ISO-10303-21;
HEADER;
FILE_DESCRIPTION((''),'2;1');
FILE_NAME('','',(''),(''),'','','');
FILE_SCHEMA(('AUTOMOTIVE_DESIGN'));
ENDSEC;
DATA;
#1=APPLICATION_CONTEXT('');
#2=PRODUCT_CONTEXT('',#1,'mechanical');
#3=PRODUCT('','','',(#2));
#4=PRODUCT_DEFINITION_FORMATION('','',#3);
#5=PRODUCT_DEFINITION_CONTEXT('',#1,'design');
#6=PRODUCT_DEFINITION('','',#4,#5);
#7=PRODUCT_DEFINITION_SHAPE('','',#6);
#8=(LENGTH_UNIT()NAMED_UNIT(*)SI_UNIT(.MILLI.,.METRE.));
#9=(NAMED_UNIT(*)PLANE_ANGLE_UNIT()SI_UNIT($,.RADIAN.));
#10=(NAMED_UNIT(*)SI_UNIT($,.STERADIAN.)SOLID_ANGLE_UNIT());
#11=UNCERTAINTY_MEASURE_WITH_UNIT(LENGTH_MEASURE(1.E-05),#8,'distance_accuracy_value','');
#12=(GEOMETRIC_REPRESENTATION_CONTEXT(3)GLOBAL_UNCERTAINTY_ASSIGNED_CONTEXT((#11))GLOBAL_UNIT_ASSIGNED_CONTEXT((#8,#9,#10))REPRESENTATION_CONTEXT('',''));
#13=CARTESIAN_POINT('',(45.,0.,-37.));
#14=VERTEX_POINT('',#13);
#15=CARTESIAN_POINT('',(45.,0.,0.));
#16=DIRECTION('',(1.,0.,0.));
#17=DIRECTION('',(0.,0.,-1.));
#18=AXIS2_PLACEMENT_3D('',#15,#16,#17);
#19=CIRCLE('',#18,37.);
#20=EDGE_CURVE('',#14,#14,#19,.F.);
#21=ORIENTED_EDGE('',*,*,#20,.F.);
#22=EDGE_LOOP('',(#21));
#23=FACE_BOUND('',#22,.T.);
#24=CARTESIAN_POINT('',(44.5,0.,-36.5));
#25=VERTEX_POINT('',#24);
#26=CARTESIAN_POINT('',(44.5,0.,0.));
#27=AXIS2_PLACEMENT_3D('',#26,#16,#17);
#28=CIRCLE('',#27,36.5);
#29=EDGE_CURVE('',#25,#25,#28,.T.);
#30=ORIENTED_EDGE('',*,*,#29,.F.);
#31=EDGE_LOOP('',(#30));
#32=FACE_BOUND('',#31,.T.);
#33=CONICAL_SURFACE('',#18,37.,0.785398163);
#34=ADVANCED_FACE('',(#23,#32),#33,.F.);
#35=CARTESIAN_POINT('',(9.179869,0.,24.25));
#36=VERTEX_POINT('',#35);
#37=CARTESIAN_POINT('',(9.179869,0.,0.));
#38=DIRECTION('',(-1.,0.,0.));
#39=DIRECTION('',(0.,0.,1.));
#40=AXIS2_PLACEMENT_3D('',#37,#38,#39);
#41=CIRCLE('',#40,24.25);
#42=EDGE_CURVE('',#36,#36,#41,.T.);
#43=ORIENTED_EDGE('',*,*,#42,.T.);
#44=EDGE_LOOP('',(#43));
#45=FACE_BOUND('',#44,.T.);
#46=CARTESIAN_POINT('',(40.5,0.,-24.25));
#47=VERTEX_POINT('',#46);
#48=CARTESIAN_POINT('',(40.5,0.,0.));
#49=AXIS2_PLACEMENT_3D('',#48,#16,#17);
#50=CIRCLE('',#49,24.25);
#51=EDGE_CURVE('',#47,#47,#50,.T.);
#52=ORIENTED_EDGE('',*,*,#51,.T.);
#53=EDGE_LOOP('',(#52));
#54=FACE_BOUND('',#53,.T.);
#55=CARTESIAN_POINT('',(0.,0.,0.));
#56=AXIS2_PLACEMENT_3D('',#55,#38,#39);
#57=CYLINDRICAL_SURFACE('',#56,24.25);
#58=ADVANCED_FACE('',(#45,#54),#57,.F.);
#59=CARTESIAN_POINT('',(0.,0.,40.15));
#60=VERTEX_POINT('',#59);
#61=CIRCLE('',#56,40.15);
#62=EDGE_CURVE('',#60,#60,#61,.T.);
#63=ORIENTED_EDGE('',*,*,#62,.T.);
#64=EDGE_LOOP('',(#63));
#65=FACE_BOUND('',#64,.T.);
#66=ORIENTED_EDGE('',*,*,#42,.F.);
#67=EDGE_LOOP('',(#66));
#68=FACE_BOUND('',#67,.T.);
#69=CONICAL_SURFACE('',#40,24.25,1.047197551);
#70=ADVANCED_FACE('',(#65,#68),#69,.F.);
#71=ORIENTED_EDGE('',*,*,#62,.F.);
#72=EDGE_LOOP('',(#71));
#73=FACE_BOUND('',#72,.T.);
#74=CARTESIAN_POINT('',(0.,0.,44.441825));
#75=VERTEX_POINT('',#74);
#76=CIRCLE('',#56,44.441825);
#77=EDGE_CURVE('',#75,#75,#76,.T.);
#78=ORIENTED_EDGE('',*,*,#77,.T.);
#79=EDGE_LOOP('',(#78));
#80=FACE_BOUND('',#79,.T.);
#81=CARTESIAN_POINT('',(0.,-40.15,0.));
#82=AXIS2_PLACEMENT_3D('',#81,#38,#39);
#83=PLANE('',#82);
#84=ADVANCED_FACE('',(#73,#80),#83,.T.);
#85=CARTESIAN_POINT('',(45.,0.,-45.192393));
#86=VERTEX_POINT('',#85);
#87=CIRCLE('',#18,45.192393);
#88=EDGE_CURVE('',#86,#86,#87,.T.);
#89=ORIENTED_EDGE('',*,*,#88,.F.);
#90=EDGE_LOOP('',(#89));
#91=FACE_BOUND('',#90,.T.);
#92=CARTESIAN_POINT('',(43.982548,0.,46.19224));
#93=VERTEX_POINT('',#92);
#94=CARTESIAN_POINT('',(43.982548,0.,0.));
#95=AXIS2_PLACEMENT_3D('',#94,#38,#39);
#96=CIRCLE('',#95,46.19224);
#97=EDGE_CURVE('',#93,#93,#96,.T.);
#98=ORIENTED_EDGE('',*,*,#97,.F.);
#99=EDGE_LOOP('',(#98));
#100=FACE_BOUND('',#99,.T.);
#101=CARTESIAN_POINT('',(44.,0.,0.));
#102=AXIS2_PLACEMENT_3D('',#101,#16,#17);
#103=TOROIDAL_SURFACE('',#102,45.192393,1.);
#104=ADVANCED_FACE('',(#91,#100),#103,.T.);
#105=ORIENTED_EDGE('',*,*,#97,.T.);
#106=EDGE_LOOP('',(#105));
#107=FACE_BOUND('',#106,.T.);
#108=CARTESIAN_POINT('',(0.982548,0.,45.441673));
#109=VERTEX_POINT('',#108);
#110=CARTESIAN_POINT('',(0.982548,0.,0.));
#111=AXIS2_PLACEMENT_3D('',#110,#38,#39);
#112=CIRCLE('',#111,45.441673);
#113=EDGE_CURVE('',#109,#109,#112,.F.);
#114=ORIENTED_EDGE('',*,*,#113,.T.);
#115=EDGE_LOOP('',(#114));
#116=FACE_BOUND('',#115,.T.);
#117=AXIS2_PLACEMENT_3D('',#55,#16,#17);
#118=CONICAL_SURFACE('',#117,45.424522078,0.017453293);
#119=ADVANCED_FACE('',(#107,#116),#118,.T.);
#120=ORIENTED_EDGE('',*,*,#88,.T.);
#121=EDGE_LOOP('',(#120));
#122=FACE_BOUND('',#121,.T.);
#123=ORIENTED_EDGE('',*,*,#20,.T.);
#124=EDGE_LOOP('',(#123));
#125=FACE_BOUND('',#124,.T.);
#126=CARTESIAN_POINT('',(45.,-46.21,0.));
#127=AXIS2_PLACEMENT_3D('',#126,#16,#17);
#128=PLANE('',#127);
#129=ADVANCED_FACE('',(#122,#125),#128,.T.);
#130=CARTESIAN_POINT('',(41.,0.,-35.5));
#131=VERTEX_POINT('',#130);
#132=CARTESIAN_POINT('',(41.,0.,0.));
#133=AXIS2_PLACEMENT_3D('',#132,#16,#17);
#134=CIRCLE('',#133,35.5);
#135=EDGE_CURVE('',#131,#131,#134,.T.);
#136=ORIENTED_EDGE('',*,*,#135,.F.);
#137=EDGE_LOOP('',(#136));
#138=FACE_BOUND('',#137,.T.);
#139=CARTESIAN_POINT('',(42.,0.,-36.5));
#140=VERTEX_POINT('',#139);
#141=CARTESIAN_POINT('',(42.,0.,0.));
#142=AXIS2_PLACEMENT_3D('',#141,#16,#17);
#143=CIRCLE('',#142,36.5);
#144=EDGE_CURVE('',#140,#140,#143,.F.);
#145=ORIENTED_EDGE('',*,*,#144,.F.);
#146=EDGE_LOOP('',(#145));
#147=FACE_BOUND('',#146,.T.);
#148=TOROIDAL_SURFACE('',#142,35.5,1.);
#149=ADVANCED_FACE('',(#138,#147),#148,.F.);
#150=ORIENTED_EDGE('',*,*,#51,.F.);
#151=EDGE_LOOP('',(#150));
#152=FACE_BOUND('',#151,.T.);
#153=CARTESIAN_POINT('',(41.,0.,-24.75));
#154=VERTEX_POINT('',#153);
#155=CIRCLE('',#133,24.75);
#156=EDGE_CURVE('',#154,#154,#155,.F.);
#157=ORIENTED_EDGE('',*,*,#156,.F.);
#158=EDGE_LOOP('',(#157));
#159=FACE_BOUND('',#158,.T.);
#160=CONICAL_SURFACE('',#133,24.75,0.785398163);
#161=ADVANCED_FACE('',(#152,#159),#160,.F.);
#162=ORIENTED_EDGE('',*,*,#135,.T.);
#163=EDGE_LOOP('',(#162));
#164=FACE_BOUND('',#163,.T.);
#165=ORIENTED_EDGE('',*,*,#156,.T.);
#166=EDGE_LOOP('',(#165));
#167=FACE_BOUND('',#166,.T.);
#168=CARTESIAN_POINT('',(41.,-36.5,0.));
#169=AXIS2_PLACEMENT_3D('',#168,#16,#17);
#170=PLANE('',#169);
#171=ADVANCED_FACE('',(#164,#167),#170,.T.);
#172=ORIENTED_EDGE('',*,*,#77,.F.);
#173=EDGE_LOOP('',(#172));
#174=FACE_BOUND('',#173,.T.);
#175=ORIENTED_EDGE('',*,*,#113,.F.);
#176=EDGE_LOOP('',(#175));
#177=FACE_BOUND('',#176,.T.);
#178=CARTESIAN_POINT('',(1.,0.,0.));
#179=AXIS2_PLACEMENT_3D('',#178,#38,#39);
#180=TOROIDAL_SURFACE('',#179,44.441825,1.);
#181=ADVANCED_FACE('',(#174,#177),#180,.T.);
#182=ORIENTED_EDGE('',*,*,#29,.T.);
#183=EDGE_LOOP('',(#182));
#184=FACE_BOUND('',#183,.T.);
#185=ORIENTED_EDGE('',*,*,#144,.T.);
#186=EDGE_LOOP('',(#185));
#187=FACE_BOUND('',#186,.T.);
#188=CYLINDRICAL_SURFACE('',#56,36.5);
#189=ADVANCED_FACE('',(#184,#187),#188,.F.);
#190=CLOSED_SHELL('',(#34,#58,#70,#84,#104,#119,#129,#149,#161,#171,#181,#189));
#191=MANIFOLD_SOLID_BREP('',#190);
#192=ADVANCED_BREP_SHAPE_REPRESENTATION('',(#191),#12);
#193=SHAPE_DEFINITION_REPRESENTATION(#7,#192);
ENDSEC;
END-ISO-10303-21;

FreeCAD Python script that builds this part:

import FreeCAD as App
import Part
import Sketcher

V = App.Vector
Q = App.Units.Quantity


def edges_at(feature, points):
    """Names of the edges that pass closest to the given points."""
    edges = feature.Shape.Edges
    near = lambda p: min(range(len(edges)), key=lambda i: edges[i].distToShape(Part.Vertex(*p))[0])
    return sorted({f"Edge{near(p) + 1}" for p in points})


def add_polygon(sketch, points):
    """Adds a closed chain of lines whose ends are joined by coincident constraints."""
    first, n = sketch.GeometryCount, len(points)
    for a, b in zip(points, points[1:] + points[:1]):
        sketch.addGeometry(Part.LineSegment(App.Vector(*a, 0), App.Vector(*b, 0)), False)
    for i in range(n):
        sketch.addConstraint(Sketcher.Constraint("Coincident", first + i, 2, first + (i + 1) % n, 1))

doc = App.newDocument("Part")
params = doc.addObject("Spreadsheet::Sheet", "Params")
for row, (alias, value) in enumerate([
    ("sketch1_width", "4 mm"),
    ("sketch1_height", "9.71 mm"),
    ("sketch1_height2", "12.25 mm"),
    ("revolution_angle", "360 deg"),
    ("fillet_radius", "1 mm"),
    ("chamfer_size", "0.5 mm"),
    ("fillet2_radius", "1 mm"),
], start=1):
    params.set(f"A{row}", alias)
    params.set(f"B{row}", "=" + value)
    params.setAlias(f"B{row}", alias)

body = doc.addObject("PartDesign::Body", "Body")

# Sketch on XY plane
sketch1 = body.newObject("Sketcher::SketchObject", "Sketch")
sketch1.AttachmentSupport = (doc.getObject("XY_Plane"), [""])
sketch1.MapMode = "FlatFace"
add_polygon(sketch1, [(0, -40.1), (0, -45.4), (45, -46.2), (45, -36.5), (41, -36.5), (41, -24.2), (9.2, -24.2)])  # lines 0-6
sketch1.addConstraint(Sketcher.Constraint("Vertical", 0))
sketch1.addConstraint(Sketcher.Constraint("Vertical", 2))
sketch1.addConstraint(Sketcher.Constraint("Horizontal", 3))
sketch1.addConstraint(Sketcher.Constraint("Vertical", 4))
sketch1.addConstraint(Sketcher.Constraint("Horizontal", 5))
sketch1.addConstraint(Sketcher.Constraint("PointOnObject", 0, 2, -2))
sketch1.addConstraint(Sketcher.Constraint("DistanceX", 3, 2, 3, 1, 4.0))
sketch1.addConstraint(Sketcher.Constraint("Angle", 1, Q("-1 deg")))
sketch1.addConstraint(Sketcher.Constraint("Angle", 6, Q("-120 deg")))
sketch1.addConstraint(Sketcher.Constraint("DistanceX", -1, 1, 1, 2, 45.0))
sketch1.addConstraint(Sketcher.Constraint("DistanceY", 2, 1, 2, 2, 9.71))
sketch1.addConstraint(Sketcher.Constraint("DistanceY", 4, 1, 4, 2, 12.25))
sketch1.addConstraint(Sketcher.Constraint("DistanceY", 2, 2, -1, 1, 36.5))
sketch1.addConstraint(Sketcher.Constraint("DistanceY", 6, 2, 5, 2, 15.9))
sketch1.setExpression("Constraints[13]", "Params.sketch1_width")
sketch1.setExpression("Constraints[17]", "Params.sketch1_height")
sketch1.setExpression("Constraints[18]", "Params.sketch1_height2")
revolution = body.newObject("PartDesign::Revolution", "Revolution")
revolution.Profile = sketch1
revolution.ReferenceAxis = (sketch1, ["H_Axis"])
revolution.setExpression("Angle", "Params.revolution_angle")
doc.recompute()

fillet = body.newObject("PartDesign::Fillet", "Fillet")
fillet.Base = (revolution, edges_at(revolution, [(45, 0, -46.21), (0, 0, -45.425)]))
fillet.setExpression("Radius", "Params.fillet_radius")
doc.recompute()

chamfer = body.newObject("PartDesign::Chamfer", "Chamfer")
chamfer.Base = (fillet, edges_at(fillet, [(41, 0, -24.25), (45, 0, -36.5)]))
chamfer.setExpression("Size", "Params.chamfer_size")
doc.recompute()

fillet2 = body.newObject("PartDesign::Fillet", "Fillet001")
fillet2.Base = (chamfer, edges_at(chamfer, [(41, 0, -36.5)]))
fillet2.setExpression("Radius", "Params.fillet2_radius")

doc.recompute()
